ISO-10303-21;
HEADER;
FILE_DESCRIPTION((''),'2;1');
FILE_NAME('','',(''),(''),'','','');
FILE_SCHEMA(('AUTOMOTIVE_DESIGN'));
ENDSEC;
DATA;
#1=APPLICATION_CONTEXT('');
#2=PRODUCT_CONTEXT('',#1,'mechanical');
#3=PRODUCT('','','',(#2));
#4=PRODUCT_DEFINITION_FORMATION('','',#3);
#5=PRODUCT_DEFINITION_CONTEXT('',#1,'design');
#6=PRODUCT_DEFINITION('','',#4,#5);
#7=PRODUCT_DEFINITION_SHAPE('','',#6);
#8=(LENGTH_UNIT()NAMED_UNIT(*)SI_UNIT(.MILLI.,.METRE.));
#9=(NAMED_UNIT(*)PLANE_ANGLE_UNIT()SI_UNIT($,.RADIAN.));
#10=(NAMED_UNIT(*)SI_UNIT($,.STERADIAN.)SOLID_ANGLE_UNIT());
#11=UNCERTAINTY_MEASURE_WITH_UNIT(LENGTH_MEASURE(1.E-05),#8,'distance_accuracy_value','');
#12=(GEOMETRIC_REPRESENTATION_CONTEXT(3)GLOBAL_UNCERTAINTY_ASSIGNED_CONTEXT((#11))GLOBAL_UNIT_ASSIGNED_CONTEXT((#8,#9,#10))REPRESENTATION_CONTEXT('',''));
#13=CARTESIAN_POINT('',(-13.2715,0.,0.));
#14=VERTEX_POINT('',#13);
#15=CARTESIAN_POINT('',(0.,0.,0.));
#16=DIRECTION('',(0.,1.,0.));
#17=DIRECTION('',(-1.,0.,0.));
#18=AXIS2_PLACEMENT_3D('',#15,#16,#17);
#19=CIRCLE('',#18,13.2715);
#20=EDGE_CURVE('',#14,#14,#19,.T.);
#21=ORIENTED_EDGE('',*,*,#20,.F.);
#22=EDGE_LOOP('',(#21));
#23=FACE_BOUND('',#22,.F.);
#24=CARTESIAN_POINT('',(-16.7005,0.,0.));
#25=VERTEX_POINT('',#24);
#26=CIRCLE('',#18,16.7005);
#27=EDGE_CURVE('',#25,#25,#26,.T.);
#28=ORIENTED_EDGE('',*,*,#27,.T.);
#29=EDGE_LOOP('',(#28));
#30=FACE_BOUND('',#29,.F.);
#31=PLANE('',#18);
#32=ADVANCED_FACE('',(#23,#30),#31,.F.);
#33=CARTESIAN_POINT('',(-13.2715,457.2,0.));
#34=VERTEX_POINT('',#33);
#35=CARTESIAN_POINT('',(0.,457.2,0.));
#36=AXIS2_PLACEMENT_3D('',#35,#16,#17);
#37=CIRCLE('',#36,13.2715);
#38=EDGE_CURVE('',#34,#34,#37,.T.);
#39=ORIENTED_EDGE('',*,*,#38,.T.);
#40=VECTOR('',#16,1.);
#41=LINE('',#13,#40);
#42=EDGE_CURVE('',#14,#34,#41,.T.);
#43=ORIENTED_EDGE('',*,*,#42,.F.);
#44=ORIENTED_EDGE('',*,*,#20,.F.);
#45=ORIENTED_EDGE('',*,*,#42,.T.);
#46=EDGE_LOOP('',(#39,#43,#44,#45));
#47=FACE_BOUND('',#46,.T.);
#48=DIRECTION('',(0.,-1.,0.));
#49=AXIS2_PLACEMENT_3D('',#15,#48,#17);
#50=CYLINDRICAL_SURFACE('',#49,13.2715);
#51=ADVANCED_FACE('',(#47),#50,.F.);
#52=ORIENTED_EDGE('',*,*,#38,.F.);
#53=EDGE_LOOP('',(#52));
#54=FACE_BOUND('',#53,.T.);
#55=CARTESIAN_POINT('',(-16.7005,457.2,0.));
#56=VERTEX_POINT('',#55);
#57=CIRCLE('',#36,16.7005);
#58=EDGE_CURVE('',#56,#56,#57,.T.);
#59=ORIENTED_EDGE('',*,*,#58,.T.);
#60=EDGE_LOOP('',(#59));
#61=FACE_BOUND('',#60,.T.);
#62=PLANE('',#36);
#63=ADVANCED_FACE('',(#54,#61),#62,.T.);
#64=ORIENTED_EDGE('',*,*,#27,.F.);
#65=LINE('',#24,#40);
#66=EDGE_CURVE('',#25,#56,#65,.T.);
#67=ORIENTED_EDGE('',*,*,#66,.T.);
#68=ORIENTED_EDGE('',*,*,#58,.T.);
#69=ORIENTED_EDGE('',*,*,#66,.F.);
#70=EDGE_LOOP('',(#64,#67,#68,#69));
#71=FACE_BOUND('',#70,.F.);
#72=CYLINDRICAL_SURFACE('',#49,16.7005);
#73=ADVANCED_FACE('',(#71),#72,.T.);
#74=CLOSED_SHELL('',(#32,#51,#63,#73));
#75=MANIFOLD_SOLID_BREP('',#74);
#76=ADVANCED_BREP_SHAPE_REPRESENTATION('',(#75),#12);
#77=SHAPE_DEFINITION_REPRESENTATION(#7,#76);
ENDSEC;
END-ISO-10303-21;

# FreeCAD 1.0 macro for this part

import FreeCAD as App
import Part
import Sketcher

V = App.Vector
Q = App.Units.Quantity

doc = App.newDocument("Part")
body = doc.addObject("PartDesign::Body", "Body")

# Sketch on XZ plane
sketch1 = doc.addObject("Sketcher::SketchObject", "Sketch")
body.addObject(sketch1)
sketch1.AttachmentSupport = (doc.XZ_Plane, [""])
sketch1.MapMode = "FlatFace"
sketch1.addGeometry([
    Part.Circle(V(0, 0, 0), V(0, 0, 1), 17),
    Part.Circle(V(0, 0, 0), V(0, 0, 1), 13),
], False)
sketch1.addConstraint([
    Sketcher.Constraint("Coincident", 0, 3, -1, 1),
    Sketcher.Constraint("Coincident", 1, 3, -1, 1),
    Sketcher.Constraint("Diameter", 0, Q("1.315 in")),
    Sketcher.Constraint("Diameter", 1, Q("1.045 in")),
])
pad1 = doc.addObject("PartDesign::Pad", "Pad")
body.addObject(pad1)
pad1.Profile = sketch1
pad1.Length = Q("18 in")
pad1.Reversed = True

doc.recompute()
